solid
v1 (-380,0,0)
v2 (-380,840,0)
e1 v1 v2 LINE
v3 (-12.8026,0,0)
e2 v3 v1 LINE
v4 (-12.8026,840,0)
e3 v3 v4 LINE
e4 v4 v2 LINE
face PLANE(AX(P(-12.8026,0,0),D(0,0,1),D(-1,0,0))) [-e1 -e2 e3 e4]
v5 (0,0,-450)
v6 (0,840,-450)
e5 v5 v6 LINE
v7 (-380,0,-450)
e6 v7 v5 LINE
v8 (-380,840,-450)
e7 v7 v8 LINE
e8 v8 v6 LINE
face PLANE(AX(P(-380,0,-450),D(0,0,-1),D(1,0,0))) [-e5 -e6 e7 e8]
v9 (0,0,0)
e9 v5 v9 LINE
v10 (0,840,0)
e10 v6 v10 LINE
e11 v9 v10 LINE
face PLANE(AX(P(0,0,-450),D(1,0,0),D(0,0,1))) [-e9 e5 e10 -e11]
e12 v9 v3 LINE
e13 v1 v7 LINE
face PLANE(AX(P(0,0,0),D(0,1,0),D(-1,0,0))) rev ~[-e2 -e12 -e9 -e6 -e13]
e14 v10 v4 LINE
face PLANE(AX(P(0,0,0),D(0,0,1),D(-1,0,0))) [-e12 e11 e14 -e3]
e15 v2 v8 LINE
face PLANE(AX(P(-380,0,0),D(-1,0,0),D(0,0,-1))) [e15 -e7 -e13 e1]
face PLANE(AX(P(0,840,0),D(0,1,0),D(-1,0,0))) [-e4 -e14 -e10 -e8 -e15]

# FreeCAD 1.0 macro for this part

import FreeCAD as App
import Part
import Sketcher
from FreeCAD import Vector

doc = App.newDocument("Part")
body = doc.addObject("PartDesign::Body", "Body")

sketch1 = body.newObject("Sketcher::SketchObject", "Sketch")
sketch1.AttachmentSupport = (doc.getObject("XZ_Plane"), [""])
sketch1.MapMode = "FlatFace"
sketch1.addGeometry([
    Part.LineSegment(Vector(-380, 0, 0), Vector(0, 0, 0)),
    Part.LineSegment(Vector(0, 0, 0), Vector(0, -450, 0)),
    Part.LineSegment(Vector(0, -450, 0), Vector(-380, -450, 0)),
    Part.LineSegment(Vector(-380, -450, 0), Vector(-380, 0, 0)),
], False)
sketch1.addConstraint([
    Sketcher.Constraint("Coincident", 0, 2, 1, 1),
    Sketcher.Constraint("Coincident", 1, 2, 2, 1),
    Sketcher.Constraint("Coincident", 2, 2, 3, 1),
    Sketcher.Constraint("Coincident", 3, 2, 0, 1),
    Sketcher.Constraint("Horizontal", 0),
    Sketcher.Constraint("Vertical", 1),
    Sketcher.Constraint("Horizontal", 2),
    Sketcher.Constraint("Vertical", 3),
    Sketcher.Constraint("Coincident", 0, 2, -1, 1),
    Sketcher.Constraint("DistanceX", 0, 1, 0, 2, 380.0),
    Sketcher.Constraint("DistanceY", 1, 2, 1, 1, 450.0),
])
pad1 = body.newObject("PartDesign::Pad", "Pad")
pad1.Profile = sketch1
pad1.Length = 840
pad1.Reversed = True

doc.recompute()
